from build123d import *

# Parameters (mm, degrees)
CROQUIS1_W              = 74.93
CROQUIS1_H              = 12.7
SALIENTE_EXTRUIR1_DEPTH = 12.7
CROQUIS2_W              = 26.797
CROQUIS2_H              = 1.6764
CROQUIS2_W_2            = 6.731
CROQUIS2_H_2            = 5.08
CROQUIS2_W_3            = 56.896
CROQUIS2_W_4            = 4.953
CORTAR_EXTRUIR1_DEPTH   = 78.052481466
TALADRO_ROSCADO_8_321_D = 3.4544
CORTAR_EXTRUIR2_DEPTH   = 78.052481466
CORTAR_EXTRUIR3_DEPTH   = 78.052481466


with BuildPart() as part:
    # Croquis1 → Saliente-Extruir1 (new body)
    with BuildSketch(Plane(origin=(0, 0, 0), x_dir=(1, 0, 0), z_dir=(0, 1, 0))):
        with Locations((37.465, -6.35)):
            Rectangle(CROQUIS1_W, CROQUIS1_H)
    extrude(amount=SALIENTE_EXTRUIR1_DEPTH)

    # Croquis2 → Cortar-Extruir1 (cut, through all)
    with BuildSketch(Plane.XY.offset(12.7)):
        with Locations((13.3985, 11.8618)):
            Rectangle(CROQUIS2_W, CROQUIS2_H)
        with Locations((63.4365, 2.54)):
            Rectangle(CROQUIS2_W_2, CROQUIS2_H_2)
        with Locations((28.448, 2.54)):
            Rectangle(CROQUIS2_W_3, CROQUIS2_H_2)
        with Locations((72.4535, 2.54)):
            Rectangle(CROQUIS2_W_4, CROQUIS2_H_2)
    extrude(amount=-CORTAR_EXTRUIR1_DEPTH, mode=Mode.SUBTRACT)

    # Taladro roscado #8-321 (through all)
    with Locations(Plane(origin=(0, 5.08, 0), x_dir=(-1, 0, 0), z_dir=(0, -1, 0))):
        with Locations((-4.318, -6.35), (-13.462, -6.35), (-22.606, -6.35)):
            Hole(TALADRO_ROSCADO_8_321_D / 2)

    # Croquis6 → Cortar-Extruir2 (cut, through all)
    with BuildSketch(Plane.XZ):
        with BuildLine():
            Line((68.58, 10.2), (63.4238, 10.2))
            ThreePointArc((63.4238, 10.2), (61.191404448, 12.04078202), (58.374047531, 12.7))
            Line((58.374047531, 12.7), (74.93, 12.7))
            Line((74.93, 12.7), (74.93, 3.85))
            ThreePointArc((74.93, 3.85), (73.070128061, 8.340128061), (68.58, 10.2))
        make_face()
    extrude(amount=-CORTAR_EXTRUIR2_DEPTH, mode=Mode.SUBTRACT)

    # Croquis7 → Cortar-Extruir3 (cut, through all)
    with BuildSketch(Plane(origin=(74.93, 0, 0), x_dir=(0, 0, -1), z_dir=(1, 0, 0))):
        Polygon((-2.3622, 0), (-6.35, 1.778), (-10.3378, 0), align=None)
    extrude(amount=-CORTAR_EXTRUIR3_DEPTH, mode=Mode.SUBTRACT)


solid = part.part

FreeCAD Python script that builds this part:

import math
import FreeCAD as App
import Part
import Sketcher
from FreeCAD import Vector
Q = App.Units.Quantity

doc = App.newDocument("Part")
body = doc.addObject("PartDesign::Body", "Body")

# Sketch on XZ plane
sketch1 = doc.addObject("Sketcher::SketchObject", "Sketch")
body.addObject(sketch1)
sketch1.AttachmentSupport = (doc.XZ_Plane, [""])
sketch1.MapMode = "FlatFace"
sketch1.addGeometry([
    Part.LineSegment(Vector(0, 0, 0), Vector(0, 12.7, 0)),
    Part.LineSegment(Vector(0, 12.7, 0), Vector(74.93, 12.7, 0)),
    Part.LineSegment(Vector(74.93, 12.7, 0), Vector(74.93, 0, 0)),
    Part.LineSegment(Vector(74.93, 0, 0), Vector(0, 0, 0)),
], False)
sketch1.addConstraint([
    Sketcher.Constraint("Coincident", 0, 2, 1, 1),
    Sketcher.Constraint("Coincident", 1, 2, 2, 1),
    Sketcher.Constraint("Coincident", 2, 2, 3, 1),
    Sketcher.Constraint("Coincident", 3, 2, 0, 1),
    Sketcher.Constraint("Vertical", 0),
    Sketcher.Constraint("Horizontal", 1),
    Sketcher.Constraint("Vertical", 2),
    Sketcher.Constraint("Horizontal", 3),
    Sketcher.Constraint("Coincident", 3, 2, -1, 1),
    Sketcher.Constraint("DistanceY", 0, 1, 0, 2, Q("0.5 in")),
    Sketcher.Constraint("DistanceX", 1, 1, 1, 2, Q("2.95 in")),
])
pad1 = doc.addObject("PartDesign::Pad", "Pad")
body.addObject(pad1)
pad1.Profile = sketch1
pad1.Length = Q("0.5 in")
pad1.Reversed = True

# Sketch on XY plane
sketch2 = doc.addObject("Sketcher::SketchObject", "Sketch001")
body.addObject(sketch2)
sketch2.AttachmentSupport = (doc.XY_Plane, [""])
sketch2.MapMode = "FlatFace"
sketch2.AttachmentOffset = App.Placement(Vector(0, 0, 0.5 * 25.4), App.Rotation())
sketch2.addGeometry([
    Part.LineSegment(Vector(0, 12.7, 0), Vector(0, 11.0236, 0)),  # 0
    Part.LineSegment(Vector(0, 11.0236, 0), Vector(26.797, 11.0236, 0)),  # 1
    Part.LineSegment(Vector(26.797, 11.0236, 0), Vector(26.797, 12.7, 0)),  # 2
    Part.LineSegment(Vector(26.797, 12.7, 0), Vector(0, 12.7, 0)),  # 3
    Part.LineSegment(Vector(60.071, 5.08, 0), Vector(60.071, 0, 0)),  # 4
    Part.LineSegment(Vector(60.071, 0, 0), Vector(66.802, 0, 0)),  # 5
    Part.LineSegment(Vector(66.802, 0, 0), Vector(66.802, 5.08, 0)),  # 6
    Part.LineSegment(Vector(66.802, 5.08, 0), Vector(60.071, 5.08, 0)),  # 7
    Part.LineSegment(Vector(0, 5.08, 0), Vector(0, 0, 0)),  # 8
    Part.LineSegment(Vector(0, 0, 0), Vector(56.896, 0, 0)),  # 9
    Part.LineSegment(Vector(56.896, 0, 0), Vector(56.896, 5.08, 0)),  # 10
    Part.LineSegment(Vector(56.896, 5.08, 0), Vector(0, 5.08, 0)),  # 11
    Part.LineSegment(Vector(69.977, 5.08, 0), Vector(69.977, 0, 0)),  # 12
    Part.LineSegment(Vector(69.977, 0, 0), Vector(74.93, 0, 0)),  # 13
    Part.LineSegment(Vector(74.93, 0, 0), Vector(74.93, 5.08, 0)),  # 14
    Part.LineSegment(Vector(74.93, 5.08, 0), Vector(69.977, 5.08, 0)),  # 15
], False)
sketch2.addConstraint([
    Sketcher.Constraint("Coincident", 0, 2, 1, 1),
    Sketcher.Constraint("Coincident", 1, 2, 2, 1),
    Sketcher.Constraint("Coincident", 2, 2, 3, 1),
    Sketcher.Constraint("Coincident", 3, 2, 0, 1),
    Sketcher.Constraint("Coincident", 4, 2, 5, 1),
    Sketcher.Constraint("Coincident", 5, 2, 6, 1),
    Sketcher.Constraint("Coincident", 6, 2, 7, 1),
    Sketcher.Constraint("Coincident", 7, 2, 4, 1),
    Sketcher.Constraint("Coincident", 8, 2, 9, 1),
    Sketcher.Constraint("Coincident", 9, 2, 10, 1),
    Sketcher.Constraint("Coincident", 10, 2, 11, 1),
    Sketcher.Constraint("Coincident", 11, 2, 8, 1),
    Sketcher.Constraint("Coincident", 12, 2, 13, 1),
    Sketcher.Constraint("Coincident", 13, 2, 14, 1),
    Sketcher.Constraint("Coincident", 14, 2, 15, 1),
    Sketcher.Constraint("Coincident", 15, 2, 12, 1),
    Sketcher.Constraint("Vertical", 0),
    Sketcher.Constraint("Horizontal", 1),
    Sketcher.Constraint("Vertical", 2),
    Sketcher.Constraint("Horizontal", 3),
    Sketcher.Constraint("Vertical", 4),
    Sketcher.Constraint("Horizontal", 5),
    Sketcher.Constraint("Vertical", 6),
    Sketcher.Constraint("Horizontal", 7),
    Sketcher.Constraint("Vertical", 8),
    Sketcher.Constraint("Horizontal", 9),
    Sketcher.Constraint("Vertical", 10),
    Sketcher.Constraint("Horizontal", 11),
    Sketcher.Constraint("Vertical", 12),
    Sketcher.Constraint("Horizontal", 13),
    Sketcher.Constraint("Vertical", 14),
    Sketcher.Constraint("Horizontal", 15),
    Sketcher.Constraint("Coincident", 8, 2, -1, 1),
    Sketcher.Constraint("PointOnObject", 0, 2, -2),
    Sketcher.Constraint("PointOnObject", 4, 2, -1),
    Sketcher.Constraint("PointOnObject", 12, 2, -1),
    Sketcher.Constraint("Horizontal", 7, 2, 10, 2),
    Sketcher.Constraint("Horizontal", 11, 2, 14, 2),
    Sketcher.Constraint("DistanceY", 4, 2, 4, 1, Q("0.2 in")),
    Sketcher.Constraint("DistanceX", 9, 1, 9, 2, Q("2.24 in")),
    Sketcher.Constraint("DistanceY", -1, 1, 2, 2, Q("0.5 in")),
    Sketcher.Constraint("DistanceX", 1, 1, 1, 2, Q("1.055 in")),
    Sketcher.Constraint("DistanceX", 5, 1, 5, 2, Q("0.265 in")),
    Sketcher.Constraint("DistanceX", 13, 1, 13, 2, Q("0.195 in")),
    Sketcher.Constraint("DistanceY", 0, 2, 0, 1, Q("0.066 in")),
    Sketcher.Constraint("DistanceX", -1, 1, 5, 2, Q("2.63 in")),
    Sketcher.Constraint("DistanceX", -1, 1, 13, 2, Q("2.95 in")),
])
pocket1 = doc.addObject("PartDesign::Pocket", "Pocket")
body.addObject(pocket1)
pocket1.Profile = sketch2
pocket1.Type = "ThroughAll"

# Sketch on XZ plane
sketch3 = doc.addObject("Sketcher::SketchObject", "Sketch002")
body.addObject(sketch3)
sketch3.AttachmentSupport = (doc.XZ_Plane, [""])
sketch3.MapMode = "FlatFace"
sketch3.AttachmentOffset = App.Placement(Vector(0, 0, -0.2 * 25.4), App.Rotation())
sketch3.addGeometry([
    Part.Circle(Vector(4.318, 6.35, 0), Vector(0, 0, 1), 1.7272),
    Part.Circle(Vector(13.462, 6.35, 0), Vector(0, 0, 1), 1.7272),
    Part.Circle(Vector(22.606, 6.35, 0), Vector(0, 0, 1), 1.7272),
], False)
sketch3.addConstraint([
    Sketcher.Constraint("Equal", 0, 1),
    Sketcher.Constraint("Equal", 1, 2),
    Sketcher.Constraint("Horizontal", 0, 3, 1, 3),
    Sketcher.Constraint("Horizontal", 1, 3, 2, 3),
    Sketcher.Constraint("Diameter", 0, Q("0.136 in")),
    Sketcher.Constraint("DistanceX", -1, 1, 0, 3, Q("0.17 in")),
    Sketcher.Constraint("DistanceY", -1, 1, 0, 3, Q("0.25 in")),
    Sketcher.Constraint("DistanceX", -1, 1, 1, 3, Q("0.53 in")),
    Sketcher.Constraint("DistanceX", -1, 1, 2, 3, Q("0.89 in")),
])
doc.recompute()
hole = doc.addObject("PartDesign::Hole", "Hole")
body.addObject(hole)
hole.Profile = sketch3
hole.ThreadType = "None"
hole.Diameter = Q("0.136 in")
hole.DepthType = "ThroughAll"

# Sketch on XZ plane
sketch4 = doc.addObject("Sketcher::SketchObject", "Sketch003")
body.addObject(sketch4)
sketch4.AttachmentSupport = (doc.XZ_Plane, [""])
sketch4.MapMode = "FlatFace"
sketch4.addGeometry([
    Part.LineSegment(Vector(63.4238, 10.2, 0), Vector(68.58, 10.2, 0)),  # 0
    Part.ArcOfCircle(Part.Circle(Vector(68.58, 3.85, 0), Vector(0, 0, 1), 6.35), math.radians(0), math.radians(90)),  # 1
    Part.LineSegment(Vector(74.93, 3.85, 0), Vector(74.93, 12.7, 0)),  # 2
    Part.LineSegment(Vector(74.93, 12.7, 0), Vector(58.374048, 12.7, 0)),  # 3
    Part.ArcOfCircle(Part.Circle(Vector(58.374048, 6.35, 0), Vector(0, 0, 1), 6.35), math.radians(37.32239), math.radians(90)),  # 4
], False)
sketch4.addConstraint([
    Sketcher.Constraint("Tangent", 0, 2, 1, 2),
    Sketcher.Constraint("Tangent", 1, 1, 2, 1),
    Sketcher.Constraint("Coincident", 2, 2, 3, 1),
    Sketcher.Constraint("Tangent", 3, 2, 4, 2),
    Sketcher.Constraint("Coincident", 4, 1, 0, 1),
    Sketcher.Constraint("Horizontal", 0),
    Sketcher.Constraint("Vertical", 2),
    Sketcher.Constraint("Horizontal", 3),
    Sketcher.Constraint("Equal", 1, 4),
    Sketcher.Constraint("Radius", 1, Q("0.25 in")),
    Sketcher.Constraint("DistanceX", -1, 1, 1, 3, Q("2.7 in")),
    Sketcher.Constraint("DistanceY", -1, 1, 2, 2, Q("0.5 in")),
    Sketcher.Constraint("DistanceX", 0, 1, 0, 2, Q("0.203 in")),
    Sketcher.Constraint("DistanceY", 2, 1, 2, 2, 8.85),
])
pocket2 = doc.addObject("PartDesign::Pocket", "Pocket001")
body.addObject(pocket2)
pocket2.Profile = sketch4
pocket2.Type = "ThroughAll"

# Sketch on YZ plane
sketch5 = doc.addObject("Sketcher::SketchObject", "Sketch004")
body.addObject(sketch5)
sketch5.AttachmentSupport = (doc.YZ_Plane, [""])
sketch5.MapMode = "FlatFace"
sketch5.AttachmentOffset = App.Placement(Vector(0, 0, 2.95 * 25.4), App.Rotation())
sketch5.addGeometry([
    Part.LineSegment(Vector(0, 2.3622, 0), Vector(1.778, 6.35, 0)),
    Part.LineSegment(Vector(1.778, 6.35, 0), Vector(0, 10.3378, 0)),
    Part.LineSegment(Vector(0, 10.3378, 0), Vector(0, 2.3622, 0)),
], False)
sketch5.addConstraint([
    Sketcher.Constraint("Coincident", 0, 2, 1, 1),
    Sketcher.Constraint("Coincident", 1, 2, 2, 1),
    Sketcher.Constraint("Coincident", 2, 2, 0, 1),
    Sketcher.Constraint("Vertical", 2),
    Sketcher.Constraint("PointOnObject", 1, 2, -2),
    Sketcher.Constraint("Equal", 0, 1),
    Sketcher.Constraint("DistanceY", 2, 2, 2, 1, Q("0.314 in")),
    Sketcher.Constraint("DistanceX", -1, 1, 0, 2, Q("0.07 in")),
    Sketcher.Constraint("DistanceY", -1, 1, 0, 2, Q("0.25 in")),
])
pocket3 = doc.addObject("PartDesign::Pocket", "Pocket002")
body.addObject(pocket3)
pocket3.Profile = sketch5
pocket3.Type = "ThroughAll"

doc.recompute()
